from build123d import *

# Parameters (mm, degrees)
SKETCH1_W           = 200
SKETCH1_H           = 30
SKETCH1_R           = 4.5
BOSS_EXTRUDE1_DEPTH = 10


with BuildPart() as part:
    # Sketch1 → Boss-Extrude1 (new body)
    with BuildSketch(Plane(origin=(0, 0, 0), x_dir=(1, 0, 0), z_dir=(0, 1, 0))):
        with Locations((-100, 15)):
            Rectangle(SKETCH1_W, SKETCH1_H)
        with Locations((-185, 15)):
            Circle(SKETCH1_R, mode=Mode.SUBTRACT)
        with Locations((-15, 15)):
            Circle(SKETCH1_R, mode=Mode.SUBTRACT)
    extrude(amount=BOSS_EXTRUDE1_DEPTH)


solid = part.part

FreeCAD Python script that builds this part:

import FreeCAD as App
import Part
import Sketcher

V = App.Vector


def add_polygon(sketch, points):
    """Adds a closed chain of lines whose ends are joined by coincident constraints."""
    first, n = sketch.GeometryCount, len(points)
    for a, b in zip(points, points[1:] + points[:1]):
        sketch.addGeometry(Part.LineSegment(App.Vector(*a, 0), App.Vector(*b, 0)), False)
    for i in range(n):
        sketch.addConstraint(Sketcher.Constraint("Coincident", first + i, 2, first + (i + 1) % n, 1))

doc = App.newDocument("Part")
body = doc.addObject("PartDesign::Body", "Body")

sketch1 = doc.addObject("Sketcher::SketchObject", "Sketch")
body.addObject(sketch1)
sketch1.AttachmentSupport = (doc.XZ_Plane, [""])
sketch1.MapMode = "FlatFace"
add_polygon(sketch1, [(-200, -30), (-200, 0), (0, 0), (0, -30)])
sketch1.addGeometry(Part.Circle(V(-185, -15, 0), V(0, 0, 1), 4.5), False)
sketch1.addGeometry(Part.Circle(V(-15, -15, 0), V(0, 0, 1), 4.5), False)
sketch1.addConstraint(Sketcher.Constraint("Vertical", 0))
sketch1.addConstraint(Sketcher.Constraint("Horizontal", 1))
sketch1.addConstraint(Sketcher.Constraint("Vertical", 2))
sketch1.addConstraint(Sketcher.Constraint("Horizontal", 3))
sketch1.addConstraint(Sketcher.Constraint("Coincident", 1, 2, -1, 1))
sketch1.addConstraint(Sketcher.Constraint("Equal", 4, 5))
sketch1.addConstraint(Sketcher.Constraint("Horizontal", 4, 3, 5, 3))
sketch1.addConstraint(Sketcher.Constraint("Diameter", 4, 9.0))
sketch1.addConstraint(Sketcher.Constraint("DistanceX", 1, 1, 1, 2, 200.0))
sketch1.addConstraint(Sketcher.Constraint("DistanceY", 0, 1, 0, 2, 30.0))
sketch1.addConstraint(Sketcher.Constraint("DistanceX", 4, 3, -1, 1, 185.0))
sketch1.addConstraint(Sketcher.Constraint("DistanceY", 4, 3, -1, 1, 15.0))
sketch1.addConstraint(Sketcher.Constraint("DistanceX", 5, 3, -1, 1, 15.0))
pad1 = doc.addObject("PartDesign::Pad", "Pad")
body.addObject(pad1)
pad1.Profile = sketch1
pad1.Length = 10
pad1.Reversed = True

doc.recompute()
